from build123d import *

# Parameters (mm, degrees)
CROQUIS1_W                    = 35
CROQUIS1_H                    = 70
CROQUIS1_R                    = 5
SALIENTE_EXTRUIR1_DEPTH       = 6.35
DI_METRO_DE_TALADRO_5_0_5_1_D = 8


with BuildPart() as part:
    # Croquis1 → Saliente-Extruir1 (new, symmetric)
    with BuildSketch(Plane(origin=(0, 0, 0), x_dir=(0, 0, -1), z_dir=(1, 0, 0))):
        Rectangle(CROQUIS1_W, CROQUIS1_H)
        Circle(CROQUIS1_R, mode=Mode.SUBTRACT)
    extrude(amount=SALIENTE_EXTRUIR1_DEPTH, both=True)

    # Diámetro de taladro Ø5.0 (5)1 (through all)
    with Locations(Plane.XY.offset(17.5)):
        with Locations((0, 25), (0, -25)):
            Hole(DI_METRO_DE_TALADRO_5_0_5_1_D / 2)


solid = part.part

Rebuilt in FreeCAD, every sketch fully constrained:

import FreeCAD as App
import Part
import Sketcher
from FreeCAD import Vector


def add_polygon(sketch, points):
    """Adds a closed chain of lines whose ends are joined by coincident constraints."""
    first, n = sketch.GeometryCount, len(points)
    for a, b in zip(points, points[1:] + points[:1]):
        sketch.addGeometry(Part.LineSegment(App.Vector(*a, 0), App.Vector(*b, 0)), False)
    for i in range(n):
        sketch.addConstraint(Sketcher.Constraint("Coincident", first + i, 2, first + (i + 1) % n, 1))

doc = App.newDocument("Part")
body = doc.addObject("PartDesign::Body", "Body")

sketch1 = body.newObject("Sketcher::SketchObject", "Sketch")
sketch1.AttachmentSupport = (doc.getObject("YZ_Plane"), [""])
sketch1.MapMode = "FlatFace"
add_polygon(sketch1, [(35, 17.5), (-35, 17.5), (-35, -17.5), (35, -17.5)])
sketch1.addGeometry(Part.Circle(Vector(0, 0, 0), Vector(0, 0, 1), 5), False)
sketch1.addConstraint([
    Sketcher.Constraint("Horizontal", 0),
    Sketcher.Constraint("Vertical", 1),
    Sketcher.Constraint("Horizontal", 2),
    Sketcher.Constraint("Vertical", 3),
    Sketcher.Constraint("Coincident", 4, 3, -1, 1),
    Sketcher.Constraint("Symmetric", 0, 2, 2, 2, -1, 1),
    Sketcher.Constraint("Diameter", 4, 10.0),
    Sketcher.Constraint("DistanceX", 0, 2, 0, 1, 70.0),
    Sketcher.Constraint("DistanceY", 1, 2, 1, 1, 35.0),
])
pad1 = body.newObject("PartDesign::Pad", "Pad")
pad1.Profile = sketch1
pad1.Length = 12.7
pad1.Midplane = True

sketch2 = body.newObject("Sketcher::SketchObject", "Sketch001")
sketch2.AttachmentSupport = (doc.getObject("XY_Plane"), [""])
sketch2.MapMode = "FlatFace"
sketch2.AttachmentOffset = App.Placement(Vector(0, 0, 17.5), App.Rotation())
sketch2.addGeometry([
    Part.Circle(Vector(0, 25, 0), Vector(0, 0, 1), 4),
    Part.Circle(Vector(0, -25, 0), Vector(0, 0, 1), 4),
], False)
sketch2.addConstraint([
    Sketcher.Constraint("Equal", 0, 1),
    Sketcher.Constraint("Symmetric", 0, 3, 1, 3, -1, 1),
    Sketcher.Constraint("PointOnObject", 0, 3, -2),
    Sketcher.Constraint("Diameter", 0, 8.0),
    Sketcher.Constraint("DistanceY", -1, 1, 0, 3, 25.0),
])
doc.recompute()
hole = body.newObject("PartDesign::Hole", "Hole")
hole.Profile = sketch2
hole.ThreadType = "None"
hole.Diameter = 8
hole.DepthType = "ThroughAll"

doc.recompute()
